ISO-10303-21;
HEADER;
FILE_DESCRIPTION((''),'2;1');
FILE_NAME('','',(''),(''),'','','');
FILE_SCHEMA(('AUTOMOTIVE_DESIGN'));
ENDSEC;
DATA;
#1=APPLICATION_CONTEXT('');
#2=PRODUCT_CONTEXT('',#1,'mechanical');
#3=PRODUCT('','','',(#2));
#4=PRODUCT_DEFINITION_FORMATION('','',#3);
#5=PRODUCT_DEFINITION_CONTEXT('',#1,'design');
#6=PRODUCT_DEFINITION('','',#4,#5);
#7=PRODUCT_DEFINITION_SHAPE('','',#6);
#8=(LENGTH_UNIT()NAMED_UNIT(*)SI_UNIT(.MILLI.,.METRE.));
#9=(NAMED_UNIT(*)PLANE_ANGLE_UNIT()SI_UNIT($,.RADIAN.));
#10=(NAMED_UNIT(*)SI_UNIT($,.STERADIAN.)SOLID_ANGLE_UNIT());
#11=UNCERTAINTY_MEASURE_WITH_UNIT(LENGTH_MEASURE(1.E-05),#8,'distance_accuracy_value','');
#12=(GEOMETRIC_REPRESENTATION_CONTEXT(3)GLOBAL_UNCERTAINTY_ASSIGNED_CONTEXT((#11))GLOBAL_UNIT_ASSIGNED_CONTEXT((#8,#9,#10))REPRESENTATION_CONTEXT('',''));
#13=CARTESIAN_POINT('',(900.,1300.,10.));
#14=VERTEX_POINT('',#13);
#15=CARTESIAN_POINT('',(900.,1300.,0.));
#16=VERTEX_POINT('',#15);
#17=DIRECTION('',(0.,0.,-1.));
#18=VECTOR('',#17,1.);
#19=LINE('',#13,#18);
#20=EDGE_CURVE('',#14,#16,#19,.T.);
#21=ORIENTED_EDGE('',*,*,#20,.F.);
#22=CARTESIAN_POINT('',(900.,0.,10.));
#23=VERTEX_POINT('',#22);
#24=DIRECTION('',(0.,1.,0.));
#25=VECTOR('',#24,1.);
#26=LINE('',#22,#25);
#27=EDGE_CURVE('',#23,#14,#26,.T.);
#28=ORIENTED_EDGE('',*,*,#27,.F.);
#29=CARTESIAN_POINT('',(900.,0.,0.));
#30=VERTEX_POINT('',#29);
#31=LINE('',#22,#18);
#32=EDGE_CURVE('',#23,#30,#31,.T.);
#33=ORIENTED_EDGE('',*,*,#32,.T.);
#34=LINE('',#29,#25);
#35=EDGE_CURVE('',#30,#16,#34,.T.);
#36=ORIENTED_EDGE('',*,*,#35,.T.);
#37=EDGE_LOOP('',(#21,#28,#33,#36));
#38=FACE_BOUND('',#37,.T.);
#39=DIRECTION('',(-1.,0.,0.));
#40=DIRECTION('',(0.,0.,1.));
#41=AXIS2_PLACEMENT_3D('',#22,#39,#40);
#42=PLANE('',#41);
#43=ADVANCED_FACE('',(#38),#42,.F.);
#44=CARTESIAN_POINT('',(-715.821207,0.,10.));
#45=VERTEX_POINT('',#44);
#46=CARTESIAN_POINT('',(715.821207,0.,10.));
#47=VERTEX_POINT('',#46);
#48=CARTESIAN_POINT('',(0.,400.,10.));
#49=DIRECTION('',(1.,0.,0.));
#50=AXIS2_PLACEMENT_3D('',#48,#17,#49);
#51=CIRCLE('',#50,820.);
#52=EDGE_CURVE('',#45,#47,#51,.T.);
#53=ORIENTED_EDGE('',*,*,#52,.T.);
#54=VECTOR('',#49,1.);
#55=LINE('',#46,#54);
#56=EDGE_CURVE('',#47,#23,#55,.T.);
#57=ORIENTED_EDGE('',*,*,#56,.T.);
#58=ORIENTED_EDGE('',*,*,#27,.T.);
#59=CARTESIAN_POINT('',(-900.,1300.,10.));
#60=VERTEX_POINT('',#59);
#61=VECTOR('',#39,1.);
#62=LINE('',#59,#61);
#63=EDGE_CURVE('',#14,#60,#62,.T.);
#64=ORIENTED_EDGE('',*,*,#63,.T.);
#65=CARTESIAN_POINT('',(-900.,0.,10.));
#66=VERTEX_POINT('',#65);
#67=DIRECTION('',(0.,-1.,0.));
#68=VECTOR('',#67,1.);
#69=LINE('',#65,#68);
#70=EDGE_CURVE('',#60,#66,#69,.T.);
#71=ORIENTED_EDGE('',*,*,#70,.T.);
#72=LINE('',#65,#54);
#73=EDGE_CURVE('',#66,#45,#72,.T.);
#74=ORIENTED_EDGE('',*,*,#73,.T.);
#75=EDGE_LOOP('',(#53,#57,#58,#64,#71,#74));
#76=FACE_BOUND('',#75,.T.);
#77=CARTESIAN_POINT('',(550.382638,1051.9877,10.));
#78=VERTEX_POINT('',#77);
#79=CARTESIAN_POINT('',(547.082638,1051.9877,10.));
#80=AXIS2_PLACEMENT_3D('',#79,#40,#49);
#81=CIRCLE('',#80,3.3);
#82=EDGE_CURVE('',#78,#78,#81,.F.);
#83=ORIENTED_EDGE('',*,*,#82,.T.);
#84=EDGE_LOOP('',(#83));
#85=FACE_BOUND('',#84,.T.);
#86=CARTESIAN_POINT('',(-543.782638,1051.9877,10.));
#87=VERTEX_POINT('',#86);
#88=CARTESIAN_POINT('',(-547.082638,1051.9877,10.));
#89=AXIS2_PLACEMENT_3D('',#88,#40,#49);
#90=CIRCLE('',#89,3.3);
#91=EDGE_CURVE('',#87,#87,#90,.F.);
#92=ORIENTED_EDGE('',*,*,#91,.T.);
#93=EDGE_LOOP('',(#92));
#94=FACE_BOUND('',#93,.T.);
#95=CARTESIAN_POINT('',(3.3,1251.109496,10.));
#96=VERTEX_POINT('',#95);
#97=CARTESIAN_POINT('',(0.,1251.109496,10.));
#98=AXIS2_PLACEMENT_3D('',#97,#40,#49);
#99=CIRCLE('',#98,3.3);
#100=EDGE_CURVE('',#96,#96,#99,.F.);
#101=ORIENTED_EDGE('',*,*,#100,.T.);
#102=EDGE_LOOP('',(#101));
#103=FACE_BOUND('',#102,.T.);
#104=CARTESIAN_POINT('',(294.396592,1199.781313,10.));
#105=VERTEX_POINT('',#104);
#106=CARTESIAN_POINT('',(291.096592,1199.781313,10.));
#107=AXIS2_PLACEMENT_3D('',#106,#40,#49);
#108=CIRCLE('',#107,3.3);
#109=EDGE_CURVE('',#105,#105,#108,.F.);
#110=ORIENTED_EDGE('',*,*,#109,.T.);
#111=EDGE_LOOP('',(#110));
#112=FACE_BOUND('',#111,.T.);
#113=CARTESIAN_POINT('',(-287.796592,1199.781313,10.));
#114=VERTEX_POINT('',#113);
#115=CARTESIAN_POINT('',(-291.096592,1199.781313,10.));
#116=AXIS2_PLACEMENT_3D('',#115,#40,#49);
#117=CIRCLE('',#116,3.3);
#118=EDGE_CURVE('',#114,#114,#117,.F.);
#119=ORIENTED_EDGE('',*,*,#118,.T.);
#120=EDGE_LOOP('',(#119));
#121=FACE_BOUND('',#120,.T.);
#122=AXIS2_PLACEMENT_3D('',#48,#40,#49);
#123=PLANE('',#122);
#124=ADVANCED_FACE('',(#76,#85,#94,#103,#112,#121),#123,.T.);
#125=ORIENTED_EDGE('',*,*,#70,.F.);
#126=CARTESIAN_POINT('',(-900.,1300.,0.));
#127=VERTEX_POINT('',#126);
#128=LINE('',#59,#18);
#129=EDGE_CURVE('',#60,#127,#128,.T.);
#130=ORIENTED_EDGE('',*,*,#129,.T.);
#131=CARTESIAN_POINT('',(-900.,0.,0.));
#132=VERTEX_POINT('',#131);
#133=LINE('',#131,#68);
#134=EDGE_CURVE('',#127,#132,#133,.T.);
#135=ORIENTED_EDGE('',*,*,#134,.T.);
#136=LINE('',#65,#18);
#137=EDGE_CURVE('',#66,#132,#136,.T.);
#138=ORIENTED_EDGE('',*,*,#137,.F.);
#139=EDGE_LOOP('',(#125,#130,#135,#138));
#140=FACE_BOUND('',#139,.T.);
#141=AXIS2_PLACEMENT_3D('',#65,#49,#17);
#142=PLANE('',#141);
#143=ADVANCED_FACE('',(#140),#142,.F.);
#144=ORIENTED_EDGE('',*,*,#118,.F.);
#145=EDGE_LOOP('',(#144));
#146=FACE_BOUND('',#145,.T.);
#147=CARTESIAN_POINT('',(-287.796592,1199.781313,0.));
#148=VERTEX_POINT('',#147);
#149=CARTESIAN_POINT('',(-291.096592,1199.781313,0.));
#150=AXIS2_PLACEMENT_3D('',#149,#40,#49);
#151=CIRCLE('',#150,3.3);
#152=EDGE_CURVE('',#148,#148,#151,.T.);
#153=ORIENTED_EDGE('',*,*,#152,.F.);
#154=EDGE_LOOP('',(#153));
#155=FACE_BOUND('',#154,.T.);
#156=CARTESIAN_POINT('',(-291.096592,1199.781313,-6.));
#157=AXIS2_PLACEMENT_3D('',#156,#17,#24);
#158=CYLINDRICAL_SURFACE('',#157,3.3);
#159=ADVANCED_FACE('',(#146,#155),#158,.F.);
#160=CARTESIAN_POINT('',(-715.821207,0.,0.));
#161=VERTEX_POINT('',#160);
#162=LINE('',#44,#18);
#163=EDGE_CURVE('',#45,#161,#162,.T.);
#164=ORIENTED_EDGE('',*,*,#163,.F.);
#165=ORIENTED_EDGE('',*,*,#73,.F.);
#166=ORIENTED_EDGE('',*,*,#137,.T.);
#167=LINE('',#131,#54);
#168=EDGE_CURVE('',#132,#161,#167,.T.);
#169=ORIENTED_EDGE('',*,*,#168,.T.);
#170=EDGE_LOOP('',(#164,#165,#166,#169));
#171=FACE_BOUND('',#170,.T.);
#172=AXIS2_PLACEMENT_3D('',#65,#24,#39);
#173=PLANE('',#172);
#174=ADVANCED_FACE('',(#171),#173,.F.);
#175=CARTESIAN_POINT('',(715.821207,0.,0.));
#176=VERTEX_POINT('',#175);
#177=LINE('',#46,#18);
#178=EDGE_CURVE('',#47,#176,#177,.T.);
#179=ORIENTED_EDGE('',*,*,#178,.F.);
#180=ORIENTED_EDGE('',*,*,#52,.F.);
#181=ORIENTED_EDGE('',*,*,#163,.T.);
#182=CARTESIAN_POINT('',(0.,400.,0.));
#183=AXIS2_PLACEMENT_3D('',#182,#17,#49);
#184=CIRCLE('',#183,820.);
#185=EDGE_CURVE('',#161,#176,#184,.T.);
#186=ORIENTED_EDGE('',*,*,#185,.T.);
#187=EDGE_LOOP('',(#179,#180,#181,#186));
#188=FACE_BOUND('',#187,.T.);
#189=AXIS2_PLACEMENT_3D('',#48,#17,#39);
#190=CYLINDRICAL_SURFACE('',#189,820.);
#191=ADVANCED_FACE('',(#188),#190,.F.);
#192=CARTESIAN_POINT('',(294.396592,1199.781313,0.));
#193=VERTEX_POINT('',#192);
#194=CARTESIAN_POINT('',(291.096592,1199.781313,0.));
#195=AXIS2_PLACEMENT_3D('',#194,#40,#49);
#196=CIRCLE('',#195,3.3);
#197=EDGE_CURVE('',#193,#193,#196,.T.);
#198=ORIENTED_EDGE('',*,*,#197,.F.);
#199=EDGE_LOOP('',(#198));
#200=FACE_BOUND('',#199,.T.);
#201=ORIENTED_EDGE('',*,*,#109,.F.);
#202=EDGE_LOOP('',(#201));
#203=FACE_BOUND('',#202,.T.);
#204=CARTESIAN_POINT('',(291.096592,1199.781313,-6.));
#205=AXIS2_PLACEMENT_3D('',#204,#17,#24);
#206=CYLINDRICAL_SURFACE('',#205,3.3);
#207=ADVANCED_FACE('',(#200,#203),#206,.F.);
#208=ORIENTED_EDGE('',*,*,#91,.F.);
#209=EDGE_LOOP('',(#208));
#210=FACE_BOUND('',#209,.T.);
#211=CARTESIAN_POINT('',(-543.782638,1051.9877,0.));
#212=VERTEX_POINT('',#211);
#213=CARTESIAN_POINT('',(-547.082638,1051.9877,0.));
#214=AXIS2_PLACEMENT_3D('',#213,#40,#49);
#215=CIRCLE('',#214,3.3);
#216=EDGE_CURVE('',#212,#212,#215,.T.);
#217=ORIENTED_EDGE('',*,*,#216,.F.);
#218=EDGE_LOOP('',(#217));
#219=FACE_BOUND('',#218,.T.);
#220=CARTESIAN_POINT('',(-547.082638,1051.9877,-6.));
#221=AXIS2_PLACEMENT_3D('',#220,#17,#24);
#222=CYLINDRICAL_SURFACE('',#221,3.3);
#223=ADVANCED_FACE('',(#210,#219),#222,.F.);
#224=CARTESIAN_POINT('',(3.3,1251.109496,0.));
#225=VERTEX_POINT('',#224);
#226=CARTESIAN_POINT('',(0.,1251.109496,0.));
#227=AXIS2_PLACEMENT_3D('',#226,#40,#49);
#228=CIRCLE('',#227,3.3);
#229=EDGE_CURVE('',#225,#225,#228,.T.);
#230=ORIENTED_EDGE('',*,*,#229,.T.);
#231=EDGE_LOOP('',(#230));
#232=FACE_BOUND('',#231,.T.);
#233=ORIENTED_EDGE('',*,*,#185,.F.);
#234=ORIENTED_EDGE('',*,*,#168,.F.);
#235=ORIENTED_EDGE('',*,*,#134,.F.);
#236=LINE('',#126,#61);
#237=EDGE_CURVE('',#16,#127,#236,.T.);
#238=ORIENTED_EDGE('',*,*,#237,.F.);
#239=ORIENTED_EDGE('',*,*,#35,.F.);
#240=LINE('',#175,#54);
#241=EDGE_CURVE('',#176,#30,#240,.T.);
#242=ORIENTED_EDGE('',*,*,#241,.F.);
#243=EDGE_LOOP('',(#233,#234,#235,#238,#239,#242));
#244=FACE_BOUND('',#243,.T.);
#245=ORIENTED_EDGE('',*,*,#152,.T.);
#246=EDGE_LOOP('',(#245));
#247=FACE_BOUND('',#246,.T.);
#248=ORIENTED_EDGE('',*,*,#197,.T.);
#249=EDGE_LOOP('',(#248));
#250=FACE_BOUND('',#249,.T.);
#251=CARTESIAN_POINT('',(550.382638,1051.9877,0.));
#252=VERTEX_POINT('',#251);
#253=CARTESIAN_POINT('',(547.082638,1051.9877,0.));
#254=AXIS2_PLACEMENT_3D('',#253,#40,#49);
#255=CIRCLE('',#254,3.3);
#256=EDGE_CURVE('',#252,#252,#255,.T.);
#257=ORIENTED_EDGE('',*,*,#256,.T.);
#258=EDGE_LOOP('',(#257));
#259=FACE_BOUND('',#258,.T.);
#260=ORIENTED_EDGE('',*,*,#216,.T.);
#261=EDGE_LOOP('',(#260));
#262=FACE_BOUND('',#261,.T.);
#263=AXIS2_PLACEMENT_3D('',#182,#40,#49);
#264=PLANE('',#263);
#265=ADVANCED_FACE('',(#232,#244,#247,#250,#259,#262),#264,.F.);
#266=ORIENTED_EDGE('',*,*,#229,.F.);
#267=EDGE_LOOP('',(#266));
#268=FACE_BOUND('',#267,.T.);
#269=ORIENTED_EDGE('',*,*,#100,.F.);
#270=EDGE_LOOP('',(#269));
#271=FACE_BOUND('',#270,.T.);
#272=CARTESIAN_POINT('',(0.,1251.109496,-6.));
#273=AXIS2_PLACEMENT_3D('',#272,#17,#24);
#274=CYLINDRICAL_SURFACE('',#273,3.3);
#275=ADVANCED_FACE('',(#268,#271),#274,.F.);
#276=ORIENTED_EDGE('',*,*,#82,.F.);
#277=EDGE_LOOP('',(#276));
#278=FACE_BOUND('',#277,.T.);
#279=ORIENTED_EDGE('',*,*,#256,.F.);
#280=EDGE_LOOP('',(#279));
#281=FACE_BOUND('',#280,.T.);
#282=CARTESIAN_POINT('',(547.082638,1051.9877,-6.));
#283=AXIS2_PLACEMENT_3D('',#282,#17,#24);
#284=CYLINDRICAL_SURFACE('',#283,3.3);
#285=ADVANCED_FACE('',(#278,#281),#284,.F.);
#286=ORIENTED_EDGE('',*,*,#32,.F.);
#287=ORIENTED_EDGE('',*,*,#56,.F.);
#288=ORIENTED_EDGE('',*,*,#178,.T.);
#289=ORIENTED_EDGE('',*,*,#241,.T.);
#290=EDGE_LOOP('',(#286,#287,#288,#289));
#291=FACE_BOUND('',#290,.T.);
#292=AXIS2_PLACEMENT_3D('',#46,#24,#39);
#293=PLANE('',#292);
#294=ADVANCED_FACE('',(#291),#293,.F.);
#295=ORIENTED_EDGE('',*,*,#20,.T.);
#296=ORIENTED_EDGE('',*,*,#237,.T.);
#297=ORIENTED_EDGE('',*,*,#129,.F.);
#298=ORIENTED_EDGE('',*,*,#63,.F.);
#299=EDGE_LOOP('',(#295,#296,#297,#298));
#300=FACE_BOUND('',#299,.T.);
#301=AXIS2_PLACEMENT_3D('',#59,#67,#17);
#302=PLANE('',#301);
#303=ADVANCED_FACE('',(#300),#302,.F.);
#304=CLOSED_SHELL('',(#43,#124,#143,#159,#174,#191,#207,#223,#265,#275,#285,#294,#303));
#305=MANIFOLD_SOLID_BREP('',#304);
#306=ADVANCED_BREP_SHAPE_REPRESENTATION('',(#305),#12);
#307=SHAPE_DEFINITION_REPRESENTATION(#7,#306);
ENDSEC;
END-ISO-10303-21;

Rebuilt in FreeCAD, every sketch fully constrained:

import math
import FreeCAD as App
import Part
import Sketcher
Q = App.Units.Quantity

doc = App.newDocument("Part")
body = doc.addObject("PartDesign::Body", "Body")

sketch1 = body.newObject("Sketcher::SketchObject", "Sketch")
sketch1.AttachmentSupport = (doc.getObject("XY_Plane"), [""])
sketch1.MapMode = "FlatFace"
sketch1.addGeometry([
    Part.LineSegment(App.Vector(715.821207, 0, 0), App.Vector(900, 0, 0)),
    Part.LineSegment(App.Vector(900, 0, 0), App.Vector(900, 1300, 0)),
    Part.LineSegment(App.Vector(900, 1300, 0), App.Vector(-900, 1300, 0)),
    Part.LineSegment(App.Vector(-900, 1300, 0), App.Vector(-900, 0, 0)),
    Part.LineSegment(App.Vector(-900, 0, 0), App.Vector(-715.821207, 0, 0)),
    Part.ArcOfCircle(Part.Circle(App.Vector(0, 400, 0), App.Vector(0, 0, 1), 820), math.radians(-29.196404), math.radians(209.196404)),
], False)
sketch1.addConstraint([
    Sketcher.Constraint("Coincident", 0, 2, 1, 1),
    Sketcher.Constraint("Coincident", 1, 2, 2, 1),
    Sketcher.Constraint("Coincident", 2, 2, 3, 1),
    Sketcher.Constraint("Coincident", 3, 2, 4, 1),
    Sketcher.Constraint("Coincident", 4, 2, 5, 2),
    Sketcher.Constraint("Coincident", 5, 1, 0, 1),
    Sketcher.Constraint("Horizontal", 0),
    Sketcher.Constraint("Vertical", 1),
    Sketcher.Constraint("Horizontal", 2),
    Sketcher.Constraint("Vertical", 3),
    Sketcher.Constraint("Horizontal", 4),
    Sketcher.Constraint("Symmetric", 0, 2, 3, 2, -1, 1),
    Sketcher.Constraint("PointOnObject", 5, 3, -2),
    Sketcher.Constraint("PointOnObject", 0, 2, -1),
    Sketcher.Constraint("Radius", 5, Q("820 mm")),
    Sketcher.Constraint("DistanceX", 2, 2, 2, 1, Q("1800 mm")),
    Sketcher.Constraint("DistanceY", 1, 1, 1, 2, Q("1300 mm")),
    Sketcher.Constraint("DistanceY", -1, 1, 5, 3, Q("400 mm")),
])
pad1 = body.newObject("PartDesign::Pad", "Pad")
pad1.Profile = sketch1
pad1.Length = 10

sketch2 = body.newObject("Sketcher::SketchObject", "Sketch001")
sketch2.AttachmentSupport = (doc.getObject("XY_Plane"), [""])
sketch2.MapMode = "FlatFace"
sketch2.AttachmentOffset = App.Placement(App.Vector(0, 0, -6), App.Rotation())
sketch2.addGeometry([
    Part.Circle(App.Vector(0, 1251.109496, 0), App.Vector(0, 0, 1), 3.3),
    Part.Circle(App.Vector(-291.096592, 1199.781313, 0), App.Vector(0, 0, 1), 3.3),
    Part.Circle(App.Vector(-547.082638, 1051.9877, 0), App.Vector(0, 0, 1), 3.3),
    Part.Circle(App.Vector(291.096592, 1199.781313, 0), App.Vector(0, 0, 1), 3.3),
    Part.Circle(App.Vector(547.082638, 1051.9877, 0), App.Vector(0, 0, 1), 3.3),
], False)
sketch2.addConstraint([
    Sketcher.Constraint("Equal", 0, 1),
    Sketcher.Constraint("Equal", 1, 2),
    Sketcher.Constraint("Equal", 2, 3),
    Sketcher.Constraint("Equal", 3, 4),
    Sketcher.Constraint("Symmetric", 1, 3, 3, 3, -2),
    Sketcher.Constraint("Symmetric", 2, 3, 4, 3, -2),
    Sketcher.Constraint("PointOnObject", 0, 3, -2),
    Sketcher.Constraint("Diameter", 0, Q("6.6 mm")),
    Sketcher.Constraint("DistanceY", -1, 1, 2, 3, Q("1051.9877 mm")),
    Sketcher.Constraint("DistanceX", 1, 3, -1, 1, Q("291.096592 mm")),
    Sketcher.Constraint("DistanceX", 2, 3, -1, 1, Q("547.082638 mm")),
    Sketcher.Constraint("DistanceY", -1, 1, 0, 3, Q("1251.109496 mm")),
    Sketcher.Constraint("DistanceY", -1, 1, 1, 3, Q("1199.781313 mm")),
])
doc.recompute()
hole = body.newObject("PartDesign::Hole", "Hole")
hole.Profile = sketch2
hole.ThreadType = "None"
hole.Diameter = 6.6
hole.DepthType = "ThroughAll"
hole.Reversed = True

doc.recompute()
